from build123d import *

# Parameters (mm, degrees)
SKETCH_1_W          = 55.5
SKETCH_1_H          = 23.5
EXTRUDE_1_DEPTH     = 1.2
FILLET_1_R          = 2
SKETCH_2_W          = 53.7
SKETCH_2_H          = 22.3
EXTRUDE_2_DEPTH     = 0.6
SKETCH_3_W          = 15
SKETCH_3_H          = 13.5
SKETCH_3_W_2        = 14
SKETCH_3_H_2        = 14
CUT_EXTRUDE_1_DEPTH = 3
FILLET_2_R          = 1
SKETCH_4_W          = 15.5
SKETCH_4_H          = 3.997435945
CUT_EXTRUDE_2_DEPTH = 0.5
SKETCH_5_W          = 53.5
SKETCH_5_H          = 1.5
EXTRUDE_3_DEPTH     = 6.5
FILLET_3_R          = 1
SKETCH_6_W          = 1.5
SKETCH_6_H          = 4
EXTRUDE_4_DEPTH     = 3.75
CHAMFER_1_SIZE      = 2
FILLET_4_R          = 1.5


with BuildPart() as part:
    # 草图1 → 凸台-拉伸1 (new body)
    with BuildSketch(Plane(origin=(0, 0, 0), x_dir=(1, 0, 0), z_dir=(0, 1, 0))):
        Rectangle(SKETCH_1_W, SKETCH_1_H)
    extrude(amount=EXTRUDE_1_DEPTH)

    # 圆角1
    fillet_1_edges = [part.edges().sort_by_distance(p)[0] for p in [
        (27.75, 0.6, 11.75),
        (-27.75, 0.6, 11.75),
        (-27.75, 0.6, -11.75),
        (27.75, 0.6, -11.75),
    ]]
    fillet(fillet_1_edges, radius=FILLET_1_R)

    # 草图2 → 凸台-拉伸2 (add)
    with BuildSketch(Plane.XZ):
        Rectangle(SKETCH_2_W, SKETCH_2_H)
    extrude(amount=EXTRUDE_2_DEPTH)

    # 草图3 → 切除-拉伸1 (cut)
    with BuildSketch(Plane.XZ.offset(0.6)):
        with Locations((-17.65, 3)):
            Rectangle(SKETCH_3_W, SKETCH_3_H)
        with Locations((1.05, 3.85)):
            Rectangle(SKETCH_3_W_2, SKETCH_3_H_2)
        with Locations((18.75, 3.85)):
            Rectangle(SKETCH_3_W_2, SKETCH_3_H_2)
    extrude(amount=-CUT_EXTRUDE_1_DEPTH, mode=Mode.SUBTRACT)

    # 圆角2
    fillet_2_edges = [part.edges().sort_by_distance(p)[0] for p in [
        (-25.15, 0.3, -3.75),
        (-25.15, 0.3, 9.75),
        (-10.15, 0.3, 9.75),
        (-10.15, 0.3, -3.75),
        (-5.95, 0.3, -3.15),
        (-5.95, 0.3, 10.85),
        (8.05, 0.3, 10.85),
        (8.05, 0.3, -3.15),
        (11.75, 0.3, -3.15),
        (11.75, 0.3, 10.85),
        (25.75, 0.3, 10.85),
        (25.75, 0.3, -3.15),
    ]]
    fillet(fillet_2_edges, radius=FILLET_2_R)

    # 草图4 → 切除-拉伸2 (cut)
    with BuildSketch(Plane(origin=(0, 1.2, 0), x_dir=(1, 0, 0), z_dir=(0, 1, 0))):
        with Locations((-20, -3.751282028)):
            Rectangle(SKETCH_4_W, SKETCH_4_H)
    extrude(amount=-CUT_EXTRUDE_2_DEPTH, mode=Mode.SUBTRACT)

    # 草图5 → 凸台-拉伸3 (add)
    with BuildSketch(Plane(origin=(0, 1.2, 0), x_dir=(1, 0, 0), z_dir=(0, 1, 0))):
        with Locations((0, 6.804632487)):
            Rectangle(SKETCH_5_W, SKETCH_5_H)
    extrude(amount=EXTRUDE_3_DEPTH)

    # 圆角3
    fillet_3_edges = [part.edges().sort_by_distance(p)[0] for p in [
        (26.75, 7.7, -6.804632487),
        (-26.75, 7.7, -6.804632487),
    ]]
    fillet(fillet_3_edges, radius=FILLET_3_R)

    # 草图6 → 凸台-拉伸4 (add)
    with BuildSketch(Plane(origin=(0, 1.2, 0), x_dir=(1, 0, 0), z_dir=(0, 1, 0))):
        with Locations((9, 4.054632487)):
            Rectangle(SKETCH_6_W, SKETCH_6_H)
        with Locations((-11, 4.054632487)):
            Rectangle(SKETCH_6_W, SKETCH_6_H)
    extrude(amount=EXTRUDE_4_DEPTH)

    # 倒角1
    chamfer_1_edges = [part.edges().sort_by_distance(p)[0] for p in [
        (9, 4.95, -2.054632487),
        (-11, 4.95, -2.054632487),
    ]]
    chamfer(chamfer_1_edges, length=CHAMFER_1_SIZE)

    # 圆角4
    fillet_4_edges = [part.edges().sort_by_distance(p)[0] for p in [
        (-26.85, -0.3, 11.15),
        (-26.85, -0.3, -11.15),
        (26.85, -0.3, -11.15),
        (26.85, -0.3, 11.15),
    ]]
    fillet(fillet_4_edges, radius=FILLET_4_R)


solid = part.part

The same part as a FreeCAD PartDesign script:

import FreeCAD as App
import Part
import Sketcher

V = App.Vector


def edges_at(feature, points):
    """Names of the edges that pass closest to the given points."""
    edges = feature.Shape.Edges
    near = lambda p: min(range(len(edges)), key=lambda i: edges[i].distToShape(Part.Vertex(*p))[0])
    return sorted({f"Edge{near(p) + 1}" for p in points})

doc = App.newDocument("Part")
body = doc.addObject("PartDesign::Body", "Body")

# Sketch on XZ plane
sketch1 = doc.addObject("Sketcher::SketchObject", "Sketch")
body.addObject(sketch1)
sketch1.AttachmentSupport = (doc.XZ_Plane, [""])
sketch1.MapMode = "FlatFace"
sketch1.addGeometry(Part.LineSegment(V(-28, -12, 0), V(-28, 12, 0)), False)
sketch1.addGeometry(Part.LineSegment(V(-28, 12, 0), V(28, 12, 0)), False)
sketch1.addGeometry(Part.LineSegment(V(28, 12, 0), V(28, -12, 0)), False)
sketch1.addGeometry(Part.LineSegment(V(28, -12, 0), V(-28, -12, 0)), False)
sketch1.addConstraint(Sketcher.Constraint("Coincident", 0, 2, 1, 1))
sketch1.addConstraint(Sketcher.Constraint("Coincident", 1, 2, 2, 1))
sketch1.addConstraint(Sketcher.Constraint("Coincident", 2, 2, 3, 1))
sketch1.addConstraint(Sketcher.Constraint("Coincident", 3, 2, 0, 1))
sketch1.addConstraint(Sketcher.Constraint("Vertical", 0))
sketch1.addConstraint(Sketcher.Constraint("Horizontal", 1))
sketch1.addConstraint(Sketcher.Constraint("Vertical", 2))
sketch1.addConstraint(Sketcher.Constraint("Horizontal", 3))
sketch1.addConstraint(Sketcher.Constraint("Symmetric", 0, 2, 2, 2, -1, 1))
sketch1.addConstraint(Sketcher.Constraint("DistanceX", 1, 1, 1, 2, 55.5))
sketch1.addConstraint(Sketcher.Constraint("DistanceY", 0, 1, 0, 2, 23.5))
pad1 = doc.addObject("PartDesign::Pad", "Pad")
body.addObject(pad1)
pad1.Profile = sketch1
pad1.Length = 1.2
pad1.Reversed = True
doc.recompute()

fillet = doc.addObject("PartDesign::Fillet", "Fillet")
body.addObject(fillet)
fillet.Base = (pad1, edges_at(pad1, [
    (27.75, 0.6, 11.75),
    (-27.75, 0.6, 11.75),
    (-27.75, 0.6, -11.75),
    (27.75, 0.6, -11.75),
]))
fillet.Radius = 2

# Sketch on XZ plane
sketch2 = doc.addObject("Sketcher::SketchObject", "Sketch001")
body.addObject(sketch2)
sketch2.AttachmentSupport = (doc.XZ_Plane, [""])
sketch2.MapMode = "FlatFace"
sketch2.addGeometry(Part.LineSegment(V(-27, 11, 0), V(-27, -11, 0)), False)
sketch2.addGeometry(Part.LineSegment(V(-27, -11, 0), V(27, -11, 0)), False)
sketch2.addGeometry(Part.LineSegment(V(27, -11, 0), V(27, 11, 0)), False)
sketch2.addGeometry(Part.LineSegment(V(27, 11, 0), V(-27, 11, 0)), False)
sketch2.addConstraint(Sketcher.Constraint("Coincident", 0, 2, 1, 1))
sketch2.addConstraint(Sketcher.Constraint("Coincident", 1, 2, 2, 1))
sketch2.addConstraint(Sketcher.Constraint("Coincident", 2, 2, 3, 1))
sketch2.addConstraint(Sketcher.Constraint("Coincident", 3, 2, 0, 1))
sketch2.addConstraint(Sketcher.Constraint("Vertical", 0))
sketch2.addConstraint(Sketcher.Constraint("Horizontal", 1))
sketch2.addConstraint(Sketcher.Constraint("Vertical", 2))
sketch2.addConstraint(Sketcher.Constraint("Horizontal", 3))
sketch2.addConstraint(Sketcher.Constraint("Symmetric", 0, 2, 2, 2, -1, 1))
sketch2.addConstraint(Sketcher.Constraint("DistanceX", 1, 1, 1, 2, 53.7))
sketch2.addConstraint(Sketcher.Constraint("DistanceY", 0, 2, 0, 1, 22.3))
pad2 = doc.addObject("PartDesign::Pad", "Pad001")
body.addObject(pad2)
pad2.Profile = sketch2
pad2.Length = 0.6

# Sketch on XZ plane
sketch3 = doc.addObject("Sketcher::SketchObject", "Sketch002")
body.addObject(sketch3)
sketch3.AttachmentSupport = (doc.XZ_Plane, [""])
sketch3.MapMode = "FlatFace"
sketch3.AttachmentOffset = App.Placement(V(0, 0, 0.6), App.Rotation())
sketch3.addGeometry(Part.LineSegment(V(-25, 10, 0), V(-25, -4, 0)), False)
sketch3.addGeometry(Part.LineSegment(V(-25, -4, 0), V(-10, -4, 0)), False)
sketch3.addGeometry(Part.LineSegment(V(-10, -4, 0), V(-10, 10, 0)), False)
sketch3.addGeometry(Part.LineSegment(V(-10, 10, 0), V(-25, 10, 0)), False)
sketch3.addGeometry(Part.LineSegment(V(-6, 11, 0), V(-6, -3, 0)), False)
sketch3.addGeometry(Part.LineSegment(V(-6, -3, 0), V(8, -3, 0)), False)
sketch3.addGeometry(Part.LineSegment(V(8, -3, 0), V(8, 11, 0)), False)
sketch3.addGeometry(Part.LineSegment(V(8, 11, 0), V(-6, 11, 0)), False)
sketch3.addGeometry(Part.LineSegment(V(12, 11, 0), V(12, -3, 0)), False)
sketch3.addGeometry(Part.LineSegment(V(12, -3, 0), V(26, -3, 0)), False)
sketch3.addGeometry(Part.LineSegment(V(26, -3, 0), V(26, 11, 0)), False)
sketch3.addGeometry(Part.LineSegment(V(26, 11, 0), V(12, 11, 0)), False)
sketch3.addConstraint(Sketcher.Constraint("Coincident", 0, 2, 1, 1))
sketch3.addConstraint(Sketcher.Constraint("Coincident", 1, 2, 2, 1))
sketch3.addConstraint(Sketcher.Constraint("Coincident", 2, 2, 3, 1))
sketch3.addConstraint(Sketcher.Constraint("Coincident", 3, 2, 0, 1))
sketch3.addConstraint(Sketcher.Constraint("Coincident", 4, 2, 5, 1))
sketch3.addConstraint(Sketcher.Constraint("Coincident", 5, 2, 6, 1))
sketch3.addConstraint(Sketcher.Constraint("Coincident", 6, 2, 7, 1))
sketch3.addConstraint(Sketcher.Constraint("Coincident", 7, 2, 4, 1))
sketch3.addConstraint(Sketcher.Constraint("Coincident", 8, 2, 9, 1))
sketch3.addConstraint(Sketcher.Constraint("Coincident", 9, 2, 10, 1))
sketch3.addConstraint(Sketcher.Constraint("Coincident", 10, 2, 11, 1))
sketch3.addConstraint(Sketcher.Constraint("Coincident", 11, 2, 8, 1))
sketch3.addConstraint(Sketcher.Constraint("Vertical", 0))
sketch3.addConstraint(Sketcher.Constraint("Horizontal", 1))
sketch3.addConstraint(Sketcher.Constraint("Vertical", 2))
sketch3.addConstraint(Sketcher.Constraint("Horizontal", 3))
sketch3.addConstraint(Sketcher.Constraint("Vertical", 4))
sketch3.addConstraint(Sketcher.Constraint("Horizontal", 5))
sketch3.addConstraint(Sketcher.Constraint("Vertical", 6))
sketch3.addConstraint(Sketcher.Constraint("Horizontal", 7))
sketch3.addConstraint(Sketcher.Constraint("Vertical", 8))
sketch3.addConstraint(Sketcher.Constraint("Horizontal", 9))
sketch3.addConstraint(Sketcher.Constraint("Vertical", 10))
sketch3.addConstraint(Sketcher.Constraint("Horizontal", 11))
sketch3.addConstraint(Sketcher.Constraint("Horizontal", 5, 2, 8, 2))
sketch3.addConstraint(Sketcher.Constraint("Horizontal", 7, 2, 10, 2))
sketch3.addConstraint(Sketcher.Constraint("Equal", 7, 9))
sketch3.addConstraint(Sketcher.Constraint("Equal", 11, 4))
sketch3.addConstraint(Sketcher.Constraint("DistanceX", 1, 1, 1, 2, 15.0))
sketch3.addConstraint(Sketcher.Constraint("DistanceX", 5, 1, 5, 2, 14.0))
sketch3.addConstraint(Sketcher.Constraint("DistanceY", 0, 2, 0, 1, 13.5))
sketch3.addConstraint(Sketcher.Constraint("DistanceX", 1, 2, 4, 2, 4.2))
sketch3.addConstraint(Sketcher.Constraint("DistanceY", 1, 2, 4, 2, 0.6))
sketch3.addConstraint(Sketcher.Constraint("DistanceX", 5, 2, 8, 2, 3.7))
sketch3.addConstraint(Sketcher.Constraint("DistanceX", 0, 2, -1, 1, 25.15))
sketch3.addConstraint(Sketcher.Constraint("DistanceY", 0, 2, -1, 1, 3.75))
pocket1 = doc.addObject("PartDesign::Pocket", "Pocket")
body.addObject(pocket1)
pocket1.Profile = sketch3
pocket1.Length = 3
doc.recompute()

fillet2 = doc.addObject("PartDesign::Fillet", "Fillet001")
body.addObject(fillet2)
fillet2.Base = (pocket1, edges_at(pocket1, [
    (-25.15, 0.3, -3.75),
    (-25.15, 0.3, 9.75),
    (-10.15, 0.3, 9.75),
    (-10.15, 0.3, -3.75),
    (-5.95, 0.3, -3.15),
    (-5.95, 0.3, 10.85),
    (8.05, 0.3, 10.85),
    (8.05, 0.3, -3.15),
    (11.75, 0.3, -3.15),
    (11.75, 0.3, 10.85),
    (25.75, 0.3, 10.85),
    (25.75, 0.3, -3.15),
]))
fillet2.Radius = 1

# Sketch on XZ plane
sketch4 = doc.addObject("Sketcher::SketchObject", "Sketch003")
body.addObject(sketch4)
sketch4.AttachmentSupport = (doc.XZ_Plane, [""])
sketch4.MapMode = "FlatFace"
sketch4.AttachmentOffset = App.Placement(V(0, 0, -1.2), App.Rotation())
sketch4.addGeometry(Part.LineSegment(V(-27.8, 1.8, 0), V(-27.8, 5.8, 0)), False)
sketch4.addGeometry(Part.LineSegment(V(-27.8, 5.8, 0), V(-12.2, 5.8, 0)), False)
sketch4.addGeometry(Part.LineSegment(V(-12.2, 5.8, 0), V(-12.2, 1.8, 0)), False)
sketch4.addGeometry(Part.LineSegment(V(-12.2, 1.8, 0), V(-27.8, 1.8, 0)), False)
sketch4.addConstraint(Sketcher.Constraint("Coincident", 0, 2, 1, 1))
sketch4.addConstraint(Sketcher.Constraint("Coincident", 1, 2, 2, 1))
sketch4.addConstraint(Sketcher.Constraint("Coincident", 2, 2, 3, 1))
sketch4.addConstraint(Sketcher.Constraint("Coincident", 3, 2, 0, 1))
sketch4.addConstraint(Sketcher.Constraint("Vertical", 0))
sketch4.addConstraint(Sketcher.Constraint("Horizontal", 1))
sketch4.addConstraint(Sketcher.Constraint("Vertical", 2))
sketch4.addConstraint(Sketcher.Constraint("Horizontal", 3))
sketch4.addConstraint(Sketcher.Constraint("DistanceX", 1, 1, 1, 2, 15.5))
sketch4.addConstraint(Sketcher.Constraint("DistanceX", 0, 2, -1, 1, 27.75))
sketch4.addConstraint(Sketcher.Constraint("DistanceY", -1, 1, 0, 2, 5.75))
sketch4.addConstraint(Sketcher.Constraint("DistanceY", 0, 1, 0, 2, 3.997436))
pocket2 = doc.addObject("PartDesign::Pocket", "Pocket001")
body.addObject(pocket2)
pocket2.Profile = sketch4
pocket2.Length = 0.5
pocket2.Reversed = True

# Sketch on XZ plane
sketch5 = doc.addObject("Sketcher::SketchObject", "Sketch004")
body.addObject(sketch5)
sketch5.AttachmentSupport = (doc.XZ_Plane, [""])
sketch5.MapMode = "FlatFace"
sketch5.AttachmentOffset = App.Placement(V(0, 0, -1.2), App.Rotation())
sketch5.addGeometry(Part.LineSegment(V(-26.8, -7.6, 0), V(-26.8, -6.1, 0)), False)
sketch5.addGeometry(Part.LineSegment(V(-26.8, -6.1, 0), V(26.8, -6.1, 0)), False)
sketch5.addGeometry(Part.LineSegment(V(26.8, -6.1, 0), V(26.8, -7.6, 0)), False)
sketch5.addGeometry(Part.LineSegment(V(26.8, -7.6, 0), V(-26.8, -7.6, 0)), False)
sketch5.addConstraint(Sketcher.Constraint("Coincident", 0, 2, 1, 1))
sketch5.addConstraint(Sketcher.Constraint("Coincident", 1, 2, 2, 1))
sketch5.addConstraint(Sketcher.Constraint("Coincident", 2, 2, 3, 1))
sketch5.addConstraint(Sketcher.Constraint("Coincident", 3, 2, 0, 1))
sketch5.addConstraint(Sketcher.Constraint("Vertical", 0))
sketch5.addConstraint(Sketcher.Constraint("Horizontal", 1))
sketch5.addConstraint(Sketcher.Constraint("Vertical", 2))
sketch5.addConstraint(Sketcher.Constraint("Horizontal", 3))
sketch5.addConstraint(Sketcher.Constraint("DistanceX", 1, 1, 1, 2, 53.5))
sketch5.addConstraint(Sketcher.Constraint("DistanceY", 0, 1, 0, 2, 1.5))
sketch5.addConstraint(Sketcher.Constraint("DistanceX", 0, 2, -1, 1, 26.75))
sketch5.addConstraint(Sketcher.Constraint("DistanceY", 0, 2, -1, 1, 6.054632))
pad3 = doc.addObject("PartDesign::Pad", "Pad002")
body.addObject(pad3)
pad3.Profile = sketch5
pad3.Length = 6.5
pad3.Reversed = True
doc.recompute()

fillet3 = doc.addObject("PartDesign::Fillet", "Fillet002")
body.addObject(fillet3)
fillet3.Base = (pad3, edges_at(pad3, [(26.75, 7.7, -6.805), (-26.75, 7.7, -6.805)]))
fillet3.Radius = 1

# Sketch on XZ plane
sketch6 = doc.addObject("Sketcher::SketchObject", "Sketch005")
body.addObject(sketch6)
sketch6.AttachmentSupport = (doc.XZ_Plane, [""])
sketch6.MapMode = "FlatFace"
sketch6.AttachmentOffset = App.Placement(V(0, 0, -1.2), App.Rotation())
sketch6.addGeometry(Part.LineSegment(V(8.2, -6.1, 0), V(8.2, -2.1, 0)), False)
sketch6.addGeometry(Part.LineSegment(V(8.2, -2.1, 0), V(9.8, -2.1, 0)), False)
sketch6.addGeometry(Part.LineSegment(V(9.8, -2.1, 0), V(9.8, -6.1, 0)), False)
sketch6.addGeometry(Part.LineSegment(V(9.8, -6.1, 0), V(8.2, -6.1, 0)), False)
sketch6.addGeometry(Part.LineSegment(V(-11.8, -6.1, 0), V(-11.8, -2.1, 0)), False)
sketch6.addGeometry(Part.LineSegment(V(-11.8, -2.1, 0), V(-10.2, -2.1, 0)), False)
sketch6.addGeometry(Part.LineSegment(V(-10.2, -2.1, 0), V(-10.2, -6.1, 0)), False)
sketch6.addGeometry(Part.LineSegment(V(-10.2, -6.1, 0), V(-11.8, -6.1, 0)), False)
sketch6.addConstraint(Sketcher.Constraint("Coincident", 0, 2, 1, 1))
sketch6.addConstraint(Sketcher.Constraint("Coincident", 1, 2, 2, 1))
sketch6.addConstraint(Sketcher.Constraint("Coincident", 2, 2, 3, 1))
sketch6.addConstraint(Sketcher.Constraint("Coincident", 3, 2, 0, 1))
sketch6.addConstraint(Sketcher.Constraint("Coincident", 4, 2, 5, 1))
sketch6.addConstraint(Sketcher.Constraint("Coincident", 5, 2, 6, 1))
sketch6.addConstraint(Sketcher.Constraint("Coincident", 6, 2, 7, 1))
sketch6.addConstraint(Sketcher.Constraint("Coincident", 7, 2, 4, 1))
sketch6.addConstraint(Sketcher.Constraint("Vertical", 0))
sketch6.addConstraint(Sketcher.Constraint("Horizontal", 1))
sketch6.addConstraint(Sketcher.Constraint("Vertical", 2))
sketch6.addConstraint(Sketcher.Constraint("Horizontal", 3))
sketch6.addConstraint(Sketcher.Constraint("Vertical", 4))
sketch6.addConstraint(Sketcher.Constraint("Horizontal", 5))
sketch6.addConstraint(Sketcher.Constraint("Vertical", 6))
sketch6.addConstraint(Sketcher.Constraint("Horizontal", 7))
sketch6.addConstraint(Sketcher.Constraint("Horizontal", 1, 2, 4, 2))
sketch6.addConstraint(Sketcher.Constraint("Horizontal", 3, 2, 6, 2))
sketch6.addConstraint(Sketcher.Constraint("Equal", 3, 5))
sketch6.addConstraint(Sketcher.Constraint("DistanceY", 0, 1, 0, 2, 4.0))
sketch6.addConstraint(Sketcher.Constraint("DistanceX", 1, 1, 1, 2, 1.5))
sketch6.addConstraint(Sketcher.Constraint("DistanceX", 4, 2, 0, 2, 20.0))
sketch6.addConstraint(Sketcher.Constraint("DistanceX", -1, 1, 0, 2, 8.25))
sketch6.addConstraint(Sketcher.Constraint("DistanceY", 0, 2, -1, 1, 2.054632))
pad4 = doc.addObject("PartDesign::Pad", "Pad003")
body.addObject(pad4)
pad4.Profile = sketch6
pad4.Length = 3.75
pad4.Reversed = True
doc.recompute()

chamfer = doc.addObject("PartDesign::Chamfer", "Chamfer")
body.addObject(chamfer)
chamfer.Base = (pad4, edges_at(pad4, [(9, 4.95, -2.055), (-11, 4.95, -2.055)]))
chamfer.Size = 2
doc.recompute()

fillet4 = doc.addObject("PartDesign::Fillet", "Fillet003")
body.addObject(fillet4)
fillet4.Base = (chamfer, edges_at(chamfer, [
    (-26.85, -0.3, 11.15),
    (-26.85, -0.3, -11.15),
    (26.85, -0.3, -11.15),
    (26.85, -0.3, 11.15),
]))
fillet4.Radius = 1.5

doc.recompute()
